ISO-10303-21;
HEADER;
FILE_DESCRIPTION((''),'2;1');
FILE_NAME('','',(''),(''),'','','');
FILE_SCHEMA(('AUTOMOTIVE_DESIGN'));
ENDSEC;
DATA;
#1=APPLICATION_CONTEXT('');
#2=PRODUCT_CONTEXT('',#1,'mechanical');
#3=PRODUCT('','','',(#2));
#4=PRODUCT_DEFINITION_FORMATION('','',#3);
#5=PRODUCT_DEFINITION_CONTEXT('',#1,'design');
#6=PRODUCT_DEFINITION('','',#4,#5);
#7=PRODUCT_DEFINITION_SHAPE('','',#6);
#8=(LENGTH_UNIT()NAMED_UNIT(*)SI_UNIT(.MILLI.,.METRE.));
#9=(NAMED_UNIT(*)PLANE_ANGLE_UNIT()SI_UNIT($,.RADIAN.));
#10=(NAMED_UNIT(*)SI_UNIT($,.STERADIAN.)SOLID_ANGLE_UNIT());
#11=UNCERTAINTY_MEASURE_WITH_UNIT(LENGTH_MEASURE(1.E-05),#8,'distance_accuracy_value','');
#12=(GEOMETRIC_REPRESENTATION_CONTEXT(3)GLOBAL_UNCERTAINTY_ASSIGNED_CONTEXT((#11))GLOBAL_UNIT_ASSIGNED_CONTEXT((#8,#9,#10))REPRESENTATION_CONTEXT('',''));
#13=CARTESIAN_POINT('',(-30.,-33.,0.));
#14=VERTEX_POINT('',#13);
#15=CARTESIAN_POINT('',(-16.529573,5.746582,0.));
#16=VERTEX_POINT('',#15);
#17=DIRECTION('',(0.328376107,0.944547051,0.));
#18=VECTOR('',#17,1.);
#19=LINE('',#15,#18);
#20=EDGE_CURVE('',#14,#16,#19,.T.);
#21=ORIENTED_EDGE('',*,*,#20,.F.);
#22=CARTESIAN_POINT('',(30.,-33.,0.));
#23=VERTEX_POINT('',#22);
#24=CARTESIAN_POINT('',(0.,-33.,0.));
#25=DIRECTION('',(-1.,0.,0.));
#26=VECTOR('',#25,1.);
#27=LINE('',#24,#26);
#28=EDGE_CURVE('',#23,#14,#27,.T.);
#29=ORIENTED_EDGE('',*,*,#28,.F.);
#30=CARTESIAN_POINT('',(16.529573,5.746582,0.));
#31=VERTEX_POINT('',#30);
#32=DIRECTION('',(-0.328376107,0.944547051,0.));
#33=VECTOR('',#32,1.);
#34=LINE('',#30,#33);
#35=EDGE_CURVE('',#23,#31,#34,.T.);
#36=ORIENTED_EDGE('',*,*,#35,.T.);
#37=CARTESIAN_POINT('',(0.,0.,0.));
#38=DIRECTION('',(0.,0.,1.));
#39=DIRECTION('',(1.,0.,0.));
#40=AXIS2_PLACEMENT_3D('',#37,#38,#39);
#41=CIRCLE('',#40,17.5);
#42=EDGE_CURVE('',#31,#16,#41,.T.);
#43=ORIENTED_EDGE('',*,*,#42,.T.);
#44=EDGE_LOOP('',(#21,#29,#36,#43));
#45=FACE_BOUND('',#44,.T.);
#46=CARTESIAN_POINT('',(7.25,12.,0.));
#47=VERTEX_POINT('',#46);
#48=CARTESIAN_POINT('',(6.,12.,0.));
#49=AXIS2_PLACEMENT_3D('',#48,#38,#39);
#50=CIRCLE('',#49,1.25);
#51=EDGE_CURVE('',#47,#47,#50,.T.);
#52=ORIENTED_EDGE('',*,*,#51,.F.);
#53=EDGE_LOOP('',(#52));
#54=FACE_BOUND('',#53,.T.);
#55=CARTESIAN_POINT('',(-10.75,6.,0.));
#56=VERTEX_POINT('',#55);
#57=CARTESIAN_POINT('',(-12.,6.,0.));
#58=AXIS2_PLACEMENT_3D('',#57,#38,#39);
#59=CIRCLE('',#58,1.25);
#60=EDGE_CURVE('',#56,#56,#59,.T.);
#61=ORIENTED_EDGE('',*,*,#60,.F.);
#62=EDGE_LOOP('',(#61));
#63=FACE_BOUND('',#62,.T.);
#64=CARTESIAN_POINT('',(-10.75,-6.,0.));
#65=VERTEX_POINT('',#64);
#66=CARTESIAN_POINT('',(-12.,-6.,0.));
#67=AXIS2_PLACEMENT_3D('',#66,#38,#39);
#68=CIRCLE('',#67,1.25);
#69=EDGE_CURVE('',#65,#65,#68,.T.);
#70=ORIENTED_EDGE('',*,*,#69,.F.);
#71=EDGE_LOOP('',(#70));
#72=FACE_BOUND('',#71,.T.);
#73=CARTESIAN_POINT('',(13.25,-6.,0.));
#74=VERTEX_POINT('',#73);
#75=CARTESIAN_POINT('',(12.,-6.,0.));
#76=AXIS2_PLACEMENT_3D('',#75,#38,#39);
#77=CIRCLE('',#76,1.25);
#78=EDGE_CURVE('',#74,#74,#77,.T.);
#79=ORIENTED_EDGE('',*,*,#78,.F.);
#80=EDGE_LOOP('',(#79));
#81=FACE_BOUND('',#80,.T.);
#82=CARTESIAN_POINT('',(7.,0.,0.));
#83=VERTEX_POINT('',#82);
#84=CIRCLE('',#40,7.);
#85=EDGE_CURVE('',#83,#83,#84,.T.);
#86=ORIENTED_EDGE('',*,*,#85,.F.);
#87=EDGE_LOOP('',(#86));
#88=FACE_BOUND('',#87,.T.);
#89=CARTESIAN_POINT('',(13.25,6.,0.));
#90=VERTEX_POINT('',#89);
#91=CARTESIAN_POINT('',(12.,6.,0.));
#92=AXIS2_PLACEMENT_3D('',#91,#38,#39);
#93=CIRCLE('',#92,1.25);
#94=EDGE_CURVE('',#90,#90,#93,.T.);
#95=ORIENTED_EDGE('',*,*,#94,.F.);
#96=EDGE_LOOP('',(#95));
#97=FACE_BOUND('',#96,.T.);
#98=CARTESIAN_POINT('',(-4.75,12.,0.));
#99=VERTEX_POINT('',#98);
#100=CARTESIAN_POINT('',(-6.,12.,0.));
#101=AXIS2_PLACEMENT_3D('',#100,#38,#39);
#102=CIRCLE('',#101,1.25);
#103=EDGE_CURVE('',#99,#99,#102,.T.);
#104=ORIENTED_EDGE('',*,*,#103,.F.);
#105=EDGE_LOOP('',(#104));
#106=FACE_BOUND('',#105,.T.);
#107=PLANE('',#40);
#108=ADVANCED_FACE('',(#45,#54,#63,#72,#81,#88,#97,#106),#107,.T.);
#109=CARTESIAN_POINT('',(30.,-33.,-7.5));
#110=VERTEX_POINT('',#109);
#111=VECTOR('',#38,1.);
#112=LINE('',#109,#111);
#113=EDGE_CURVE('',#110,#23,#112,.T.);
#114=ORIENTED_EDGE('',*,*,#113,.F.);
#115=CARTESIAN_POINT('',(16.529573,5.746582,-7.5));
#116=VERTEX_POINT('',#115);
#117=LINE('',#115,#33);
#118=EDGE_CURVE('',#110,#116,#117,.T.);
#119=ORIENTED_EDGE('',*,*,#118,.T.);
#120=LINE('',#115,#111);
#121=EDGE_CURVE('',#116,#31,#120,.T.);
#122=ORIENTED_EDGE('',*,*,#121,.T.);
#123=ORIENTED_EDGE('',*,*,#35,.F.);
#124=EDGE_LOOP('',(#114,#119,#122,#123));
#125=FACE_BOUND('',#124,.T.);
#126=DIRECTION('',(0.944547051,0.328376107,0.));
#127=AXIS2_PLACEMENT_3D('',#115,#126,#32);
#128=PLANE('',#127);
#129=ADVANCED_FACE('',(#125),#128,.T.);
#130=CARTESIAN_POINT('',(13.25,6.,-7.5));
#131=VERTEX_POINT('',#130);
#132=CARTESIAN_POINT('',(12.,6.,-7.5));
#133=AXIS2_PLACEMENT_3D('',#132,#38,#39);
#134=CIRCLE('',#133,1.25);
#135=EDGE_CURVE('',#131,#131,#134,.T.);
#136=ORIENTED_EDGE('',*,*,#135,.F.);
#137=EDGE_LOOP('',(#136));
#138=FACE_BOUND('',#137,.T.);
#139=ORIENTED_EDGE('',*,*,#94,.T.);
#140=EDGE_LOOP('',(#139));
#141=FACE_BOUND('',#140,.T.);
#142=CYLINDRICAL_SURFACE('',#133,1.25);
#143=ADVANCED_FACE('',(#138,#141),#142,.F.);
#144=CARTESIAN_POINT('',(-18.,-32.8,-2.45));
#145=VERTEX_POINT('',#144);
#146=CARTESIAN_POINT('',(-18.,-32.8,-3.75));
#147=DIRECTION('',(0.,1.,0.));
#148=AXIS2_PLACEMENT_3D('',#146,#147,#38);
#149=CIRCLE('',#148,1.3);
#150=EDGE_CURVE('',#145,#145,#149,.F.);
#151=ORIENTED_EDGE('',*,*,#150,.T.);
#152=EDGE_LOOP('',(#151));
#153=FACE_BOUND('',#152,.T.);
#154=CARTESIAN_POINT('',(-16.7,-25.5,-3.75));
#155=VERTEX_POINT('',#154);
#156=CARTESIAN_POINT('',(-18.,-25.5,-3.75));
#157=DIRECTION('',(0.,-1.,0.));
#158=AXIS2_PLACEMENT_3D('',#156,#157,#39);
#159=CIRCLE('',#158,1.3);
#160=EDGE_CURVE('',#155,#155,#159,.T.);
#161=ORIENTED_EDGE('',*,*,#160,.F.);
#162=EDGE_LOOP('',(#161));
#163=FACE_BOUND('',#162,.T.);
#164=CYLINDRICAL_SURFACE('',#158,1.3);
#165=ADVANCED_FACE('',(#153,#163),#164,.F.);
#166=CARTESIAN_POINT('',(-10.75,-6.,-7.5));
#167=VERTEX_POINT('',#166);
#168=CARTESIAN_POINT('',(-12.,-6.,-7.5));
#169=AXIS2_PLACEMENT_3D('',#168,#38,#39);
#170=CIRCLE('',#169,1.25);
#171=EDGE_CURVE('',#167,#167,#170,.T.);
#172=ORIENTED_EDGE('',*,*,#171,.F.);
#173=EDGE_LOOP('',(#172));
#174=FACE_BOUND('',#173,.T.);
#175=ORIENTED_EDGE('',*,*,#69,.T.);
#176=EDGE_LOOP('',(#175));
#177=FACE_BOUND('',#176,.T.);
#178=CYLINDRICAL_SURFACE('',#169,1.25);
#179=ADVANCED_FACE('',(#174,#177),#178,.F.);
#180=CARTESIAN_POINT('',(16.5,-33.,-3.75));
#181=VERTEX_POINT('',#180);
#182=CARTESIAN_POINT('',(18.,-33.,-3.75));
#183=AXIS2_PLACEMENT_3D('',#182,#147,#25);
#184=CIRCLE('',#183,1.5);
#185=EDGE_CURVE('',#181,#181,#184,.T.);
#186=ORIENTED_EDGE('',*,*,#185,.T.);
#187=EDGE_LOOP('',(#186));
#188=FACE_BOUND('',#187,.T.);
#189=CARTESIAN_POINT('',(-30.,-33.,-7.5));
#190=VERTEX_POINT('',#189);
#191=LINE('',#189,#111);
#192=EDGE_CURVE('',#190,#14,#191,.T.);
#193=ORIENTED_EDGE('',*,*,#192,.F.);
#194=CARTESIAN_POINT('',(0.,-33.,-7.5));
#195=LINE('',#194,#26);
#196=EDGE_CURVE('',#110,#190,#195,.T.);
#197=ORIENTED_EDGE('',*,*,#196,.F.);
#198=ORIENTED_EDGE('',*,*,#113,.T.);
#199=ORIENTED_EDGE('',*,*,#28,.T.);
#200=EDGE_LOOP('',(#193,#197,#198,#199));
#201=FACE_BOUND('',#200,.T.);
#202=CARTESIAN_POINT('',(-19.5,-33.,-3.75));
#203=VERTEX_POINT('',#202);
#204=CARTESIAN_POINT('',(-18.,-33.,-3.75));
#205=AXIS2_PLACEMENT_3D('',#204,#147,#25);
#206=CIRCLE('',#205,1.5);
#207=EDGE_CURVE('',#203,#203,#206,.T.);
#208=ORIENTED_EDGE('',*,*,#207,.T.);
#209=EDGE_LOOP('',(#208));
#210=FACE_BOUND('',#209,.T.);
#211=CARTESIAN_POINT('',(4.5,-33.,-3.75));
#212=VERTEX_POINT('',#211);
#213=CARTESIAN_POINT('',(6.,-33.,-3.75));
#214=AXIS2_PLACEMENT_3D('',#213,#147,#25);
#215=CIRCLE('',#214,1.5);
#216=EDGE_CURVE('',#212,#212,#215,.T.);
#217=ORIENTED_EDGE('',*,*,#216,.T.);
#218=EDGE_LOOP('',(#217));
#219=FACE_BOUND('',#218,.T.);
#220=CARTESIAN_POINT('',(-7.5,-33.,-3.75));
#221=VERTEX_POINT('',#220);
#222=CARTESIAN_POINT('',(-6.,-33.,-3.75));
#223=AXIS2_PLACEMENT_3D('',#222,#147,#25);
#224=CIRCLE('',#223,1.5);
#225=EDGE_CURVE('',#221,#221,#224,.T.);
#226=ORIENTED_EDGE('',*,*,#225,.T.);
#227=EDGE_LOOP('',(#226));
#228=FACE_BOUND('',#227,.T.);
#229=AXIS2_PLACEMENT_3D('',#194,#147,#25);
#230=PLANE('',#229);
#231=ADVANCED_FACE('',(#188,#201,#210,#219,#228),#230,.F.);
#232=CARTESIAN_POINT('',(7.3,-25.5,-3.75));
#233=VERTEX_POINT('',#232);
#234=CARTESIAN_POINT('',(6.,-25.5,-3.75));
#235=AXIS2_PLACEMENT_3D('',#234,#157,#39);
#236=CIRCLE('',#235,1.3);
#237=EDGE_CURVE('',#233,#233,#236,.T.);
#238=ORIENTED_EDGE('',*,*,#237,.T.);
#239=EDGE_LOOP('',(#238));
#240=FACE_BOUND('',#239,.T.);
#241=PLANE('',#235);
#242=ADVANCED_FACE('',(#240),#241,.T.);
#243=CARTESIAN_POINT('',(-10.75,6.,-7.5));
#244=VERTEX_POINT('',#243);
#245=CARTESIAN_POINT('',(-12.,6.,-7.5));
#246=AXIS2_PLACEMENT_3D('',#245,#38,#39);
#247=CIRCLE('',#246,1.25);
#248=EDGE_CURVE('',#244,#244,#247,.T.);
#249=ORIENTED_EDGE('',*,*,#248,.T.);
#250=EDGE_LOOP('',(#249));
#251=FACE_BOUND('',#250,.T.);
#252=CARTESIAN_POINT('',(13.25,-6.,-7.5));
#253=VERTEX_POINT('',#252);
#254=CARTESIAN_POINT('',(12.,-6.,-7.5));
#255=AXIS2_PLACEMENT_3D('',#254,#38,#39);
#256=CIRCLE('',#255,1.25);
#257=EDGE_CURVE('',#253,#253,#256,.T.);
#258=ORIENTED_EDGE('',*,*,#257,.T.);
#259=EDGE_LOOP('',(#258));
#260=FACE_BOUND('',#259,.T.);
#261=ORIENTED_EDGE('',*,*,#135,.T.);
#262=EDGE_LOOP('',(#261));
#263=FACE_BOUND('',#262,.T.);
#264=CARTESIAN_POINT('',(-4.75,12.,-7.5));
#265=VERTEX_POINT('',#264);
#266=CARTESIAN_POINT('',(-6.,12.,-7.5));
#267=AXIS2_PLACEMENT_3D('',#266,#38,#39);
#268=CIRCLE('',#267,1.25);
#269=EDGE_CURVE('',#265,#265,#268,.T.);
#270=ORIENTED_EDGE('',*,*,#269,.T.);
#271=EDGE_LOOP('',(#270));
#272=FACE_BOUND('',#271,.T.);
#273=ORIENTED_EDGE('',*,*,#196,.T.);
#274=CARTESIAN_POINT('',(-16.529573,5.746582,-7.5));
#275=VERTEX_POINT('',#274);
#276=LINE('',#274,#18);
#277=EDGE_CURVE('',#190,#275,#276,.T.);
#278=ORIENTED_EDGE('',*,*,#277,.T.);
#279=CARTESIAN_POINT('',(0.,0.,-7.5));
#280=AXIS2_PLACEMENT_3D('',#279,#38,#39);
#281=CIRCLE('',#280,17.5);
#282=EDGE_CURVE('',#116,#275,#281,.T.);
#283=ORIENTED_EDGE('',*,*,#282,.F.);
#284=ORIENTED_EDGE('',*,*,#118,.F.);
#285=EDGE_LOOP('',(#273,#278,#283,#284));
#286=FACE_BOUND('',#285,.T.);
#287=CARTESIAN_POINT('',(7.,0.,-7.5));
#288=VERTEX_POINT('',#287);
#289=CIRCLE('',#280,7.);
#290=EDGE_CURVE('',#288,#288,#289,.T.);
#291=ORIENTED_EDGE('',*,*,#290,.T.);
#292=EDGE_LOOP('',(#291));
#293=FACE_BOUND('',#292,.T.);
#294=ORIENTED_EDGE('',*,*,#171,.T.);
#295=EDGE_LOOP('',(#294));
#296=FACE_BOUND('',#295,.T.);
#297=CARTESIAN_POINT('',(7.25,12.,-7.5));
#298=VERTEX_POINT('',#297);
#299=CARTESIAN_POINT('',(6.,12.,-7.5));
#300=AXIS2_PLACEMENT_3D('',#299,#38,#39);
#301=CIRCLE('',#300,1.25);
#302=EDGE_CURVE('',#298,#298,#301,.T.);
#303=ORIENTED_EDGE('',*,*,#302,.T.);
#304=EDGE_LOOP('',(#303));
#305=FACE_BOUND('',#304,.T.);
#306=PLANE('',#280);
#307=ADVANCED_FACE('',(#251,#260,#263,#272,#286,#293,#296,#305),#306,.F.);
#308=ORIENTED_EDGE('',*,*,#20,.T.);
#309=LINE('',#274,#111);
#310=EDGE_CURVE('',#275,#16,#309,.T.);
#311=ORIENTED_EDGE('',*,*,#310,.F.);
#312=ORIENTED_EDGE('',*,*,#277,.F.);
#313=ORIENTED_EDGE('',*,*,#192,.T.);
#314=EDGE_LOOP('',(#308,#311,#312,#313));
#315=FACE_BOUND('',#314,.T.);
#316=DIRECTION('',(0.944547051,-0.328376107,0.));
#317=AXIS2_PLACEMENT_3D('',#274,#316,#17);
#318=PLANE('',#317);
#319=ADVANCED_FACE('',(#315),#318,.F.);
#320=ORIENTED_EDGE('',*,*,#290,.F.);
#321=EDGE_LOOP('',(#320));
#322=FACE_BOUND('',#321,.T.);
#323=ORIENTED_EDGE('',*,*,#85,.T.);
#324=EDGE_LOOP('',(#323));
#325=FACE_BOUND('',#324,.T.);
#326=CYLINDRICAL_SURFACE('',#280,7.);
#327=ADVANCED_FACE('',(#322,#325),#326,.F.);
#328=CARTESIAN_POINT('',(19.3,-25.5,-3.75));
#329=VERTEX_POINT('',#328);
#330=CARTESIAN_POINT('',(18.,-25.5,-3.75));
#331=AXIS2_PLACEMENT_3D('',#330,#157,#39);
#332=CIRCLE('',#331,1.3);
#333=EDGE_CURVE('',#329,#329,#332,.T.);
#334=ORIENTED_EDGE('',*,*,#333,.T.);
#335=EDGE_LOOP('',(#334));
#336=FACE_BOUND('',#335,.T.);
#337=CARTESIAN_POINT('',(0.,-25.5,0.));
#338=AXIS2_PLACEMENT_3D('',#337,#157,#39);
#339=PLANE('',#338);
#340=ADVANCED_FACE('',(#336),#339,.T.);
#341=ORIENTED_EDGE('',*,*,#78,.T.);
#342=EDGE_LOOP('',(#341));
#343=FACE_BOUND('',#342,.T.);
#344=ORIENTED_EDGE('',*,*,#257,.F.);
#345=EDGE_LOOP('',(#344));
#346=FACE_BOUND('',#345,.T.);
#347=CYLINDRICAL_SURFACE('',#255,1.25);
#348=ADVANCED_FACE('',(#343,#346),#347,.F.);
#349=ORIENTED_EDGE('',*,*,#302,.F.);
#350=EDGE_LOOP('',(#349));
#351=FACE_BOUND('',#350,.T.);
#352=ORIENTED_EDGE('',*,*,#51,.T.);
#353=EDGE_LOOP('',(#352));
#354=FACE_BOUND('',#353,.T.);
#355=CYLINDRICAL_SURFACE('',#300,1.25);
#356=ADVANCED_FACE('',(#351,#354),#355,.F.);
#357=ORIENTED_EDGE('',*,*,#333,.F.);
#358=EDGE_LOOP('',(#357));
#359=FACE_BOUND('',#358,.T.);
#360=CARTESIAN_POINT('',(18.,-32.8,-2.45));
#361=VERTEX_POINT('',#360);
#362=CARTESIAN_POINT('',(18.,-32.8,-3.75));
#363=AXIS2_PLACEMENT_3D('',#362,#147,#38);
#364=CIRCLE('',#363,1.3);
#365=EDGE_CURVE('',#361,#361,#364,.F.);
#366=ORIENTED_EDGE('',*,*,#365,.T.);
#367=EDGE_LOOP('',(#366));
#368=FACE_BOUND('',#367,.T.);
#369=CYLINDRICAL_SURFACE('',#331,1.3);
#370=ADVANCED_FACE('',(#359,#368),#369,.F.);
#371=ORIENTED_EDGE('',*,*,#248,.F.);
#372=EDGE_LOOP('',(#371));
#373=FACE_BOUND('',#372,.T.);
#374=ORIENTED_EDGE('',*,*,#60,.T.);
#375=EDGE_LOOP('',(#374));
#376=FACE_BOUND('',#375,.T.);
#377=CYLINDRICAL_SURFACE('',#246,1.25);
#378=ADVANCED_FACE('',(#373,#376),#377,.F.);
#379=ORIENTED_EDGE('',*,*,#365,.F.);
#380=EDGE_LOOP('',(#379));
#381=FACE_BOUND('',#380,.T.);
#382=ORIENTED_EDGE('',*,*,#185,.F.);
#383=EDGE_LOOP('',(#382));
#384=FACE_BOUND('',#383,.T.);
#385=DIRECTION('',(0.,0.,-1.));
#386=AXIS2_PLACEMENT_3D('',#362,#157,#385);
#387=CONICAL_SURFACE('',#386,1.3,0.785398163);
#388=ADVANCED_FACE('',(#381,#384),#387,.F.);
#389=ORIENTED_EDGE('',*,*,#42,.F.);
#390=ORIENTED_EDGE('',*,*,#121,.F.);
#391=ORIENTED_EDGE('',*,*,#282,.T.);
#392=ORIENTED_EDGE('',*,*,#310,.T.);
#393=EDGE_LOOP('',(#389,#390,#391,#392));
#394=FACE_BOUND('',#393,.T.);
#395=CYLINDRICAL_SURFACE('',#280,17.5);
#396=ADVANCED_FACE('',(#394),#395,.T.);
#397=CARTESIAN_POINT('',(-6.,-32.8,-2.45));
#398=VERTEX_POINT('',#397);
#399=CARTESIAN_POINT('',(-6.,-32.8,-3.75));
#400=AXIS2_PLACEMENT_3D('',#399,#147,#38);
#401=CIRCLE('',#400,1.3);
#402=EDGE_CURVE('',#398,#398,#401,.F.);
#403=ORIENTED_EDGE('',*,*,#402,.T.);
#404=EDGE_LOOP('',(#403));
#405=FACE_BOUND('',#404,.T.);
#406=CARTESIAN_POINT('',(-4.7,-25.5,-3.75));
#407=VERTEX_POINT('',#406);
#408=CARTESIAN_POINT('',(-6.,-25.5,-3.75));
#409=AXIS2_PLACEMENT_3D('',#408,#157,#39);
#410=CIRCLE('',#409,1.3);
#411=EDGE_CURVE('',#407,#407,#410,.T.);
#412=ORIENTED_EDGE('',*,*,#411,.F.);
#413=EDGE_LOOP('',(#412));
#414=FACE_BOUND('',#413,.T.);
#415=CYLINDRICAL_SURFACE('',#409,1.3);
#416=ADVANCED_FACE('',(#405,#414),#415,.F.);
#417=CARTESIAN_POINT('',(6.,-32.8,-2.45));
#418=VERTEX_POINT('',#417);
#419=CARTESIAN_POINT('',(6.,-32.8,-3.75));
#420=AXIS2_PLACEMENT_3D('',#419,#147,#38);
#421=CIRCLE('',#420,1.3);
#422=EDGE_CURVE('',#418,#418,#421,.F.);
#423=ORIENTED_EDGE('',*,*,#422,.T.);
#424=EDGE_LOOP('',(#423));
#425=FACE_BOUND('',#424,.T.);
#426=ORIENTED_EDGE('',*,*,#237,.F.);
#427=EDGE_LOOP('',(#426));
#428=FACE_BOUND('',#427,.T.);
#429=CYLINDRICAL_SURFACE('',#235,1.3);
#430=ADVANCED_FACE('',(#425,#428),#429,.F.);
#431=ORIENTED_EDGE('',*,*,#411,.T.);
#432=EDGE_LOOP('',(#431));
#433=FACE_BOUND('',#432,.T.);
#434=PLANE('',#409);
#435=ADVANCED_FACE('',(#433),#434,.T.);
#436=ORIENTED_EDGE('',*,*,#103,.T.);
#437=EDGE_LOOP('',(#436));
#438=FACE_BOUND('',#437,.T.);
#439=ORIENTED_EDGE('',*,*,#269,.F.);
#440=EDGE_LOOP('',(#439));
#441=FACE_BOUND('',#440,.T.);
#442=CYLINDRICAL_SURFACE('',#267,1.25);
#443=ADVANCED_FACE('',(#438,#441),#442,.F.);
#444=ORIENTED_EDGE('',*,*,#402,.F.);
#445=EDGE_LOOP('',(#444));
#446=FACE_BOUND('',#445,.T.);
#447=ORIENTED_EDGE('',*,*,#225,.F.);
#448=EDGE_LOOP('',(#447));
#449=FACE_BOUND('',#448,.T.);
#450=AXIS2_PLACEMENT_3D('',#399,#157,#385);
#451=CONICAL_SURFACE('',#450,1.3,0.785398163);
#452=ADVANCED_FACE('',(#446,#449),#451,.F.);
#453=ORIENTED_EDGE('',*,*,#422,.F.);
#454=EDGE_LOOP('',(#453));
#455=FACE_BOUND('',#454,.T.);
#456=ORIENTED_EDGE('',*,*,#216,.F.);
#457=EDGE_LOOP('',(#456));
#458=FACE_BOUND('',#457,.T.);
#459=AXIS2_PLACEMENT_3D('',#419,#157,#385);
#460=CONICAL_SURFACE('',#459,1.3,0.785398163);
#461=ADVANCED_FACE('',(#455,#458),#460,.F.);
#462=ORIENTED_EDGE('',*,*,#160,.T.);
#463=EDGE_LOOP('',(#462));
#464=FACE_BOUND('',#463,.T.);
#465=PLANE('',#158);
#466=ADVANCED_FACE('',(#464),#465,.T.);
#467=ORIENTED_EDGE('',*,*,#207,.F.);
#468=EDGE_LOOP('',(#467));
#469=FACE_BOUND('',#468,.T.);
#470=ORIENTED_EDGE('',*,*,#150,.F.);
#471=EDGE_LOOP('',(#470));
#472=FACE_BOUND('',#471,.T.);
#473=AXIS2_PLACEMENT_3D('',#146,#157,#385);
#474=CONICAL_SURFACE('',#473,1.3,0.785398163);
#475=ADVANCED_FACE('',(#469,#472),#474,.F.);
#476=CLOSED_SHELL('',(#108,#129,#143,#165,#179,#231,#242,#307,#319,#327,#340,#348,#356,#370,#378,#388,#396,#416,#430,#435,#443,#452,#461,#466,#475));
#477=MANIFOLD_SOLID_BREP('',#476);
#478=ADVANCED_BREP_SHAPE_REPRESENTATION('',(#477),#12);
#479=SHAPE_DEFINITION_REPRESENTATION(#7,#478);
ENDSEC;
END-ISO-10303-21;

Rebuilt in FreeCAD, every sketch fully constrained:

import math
import FreeCAD as App
import Part
import Sketcher
from FreeCAD import Vector
Q = App.Units.Quantity


def edges_at(feature, points):
    """Names of the edges that pass closest to the given points."""
    edges = feature.Shape.Edges
    near = lambda p: min(range(len(edges)), key=lambda i: edges[i].distToShape(Part.Vertex(*p))[0])
    return sorted({f"Edge{near(p) + 1}" for p in points})

doc = App.newDocument("Part")
body = doc.addObject("PartDesign::Body", "Body")

# Sketch on XY plane
sketch1 = body.newObject("Sketcher::SketchObject", "Sketch")
sketch1.AttachmentSupport = (doc.getObject("XY_Plane"), [""])
sketch1.MapMode = "FlatFace"
sketch1.addGeometry([
    Part.LineSegment(Vector(-16.5, 5.7, 0), Vector(-30, -33, 0)),  # 0
    Part.LineSegment(Vector(-30, -33, 0), Vector(30, -33, 0)),  # 1
    Part.LineSegment(Vector(30, -33, 0), Vector(16.5, 5.7, 0)),  # 2
    Part.ArcOfCircle(Part.Circle(Vector(0, 0, 0), Vector(0, 0, 1), 17.5), math.radians(19), math.radians(161)),  # 3
    Part.Circle(Vector(12, -6, 0), Vector(0, 0, 1), 1.2),  # 4
    Part.Circle(Vector(-12, -6, 0), Vector(0, 0, 1), 1.2),  # 5
    Part.Circle(Vector(0, 0, 0), Vector(0, 0, 1), 7),  # 6
    Part.Circle(Vector(12, 6, 0), Vector(0, 0, 1), 1.2),  # 7
    Part.Circle(Vector(6, 12, 0), Vector(0, 0, 1), 1.2),  # 8
    Part.Circle(Vector(-12, 6, 0), Vector(0, 0, 1), 1.2),  # 9
    Part.Circle(Vector(-6, 12, 0), Vector(0, 0, 1), 1.2),  # 10
], False)
sketch1.addConstraint([
    Sketcher.Constraint("Coincident", 0, 2, 1, 1),
    Sketcher.Constraint("Coincident", 1, 2, 2, 1),
    Sketcher.Constraint("Tangent", 2, 2, 3, 1),
    Sketcher.Constraint("Tangent", 3, 2, 0, 1),
    Sketcher.Constraint("Horizontal", 1),
    Sketcher.Constraint("Coincident", 3, 3, -1, 1),
    Sketcher.Constraint("Coincident", 6, 3, -1, 1),
    Sketcher.Constraint("Equal", 4, 5),
    Sketcher.Constraint("Equal", 5, 7),
    Sketcher.Constraint("Equal", 7, 8),
    Sketcher.Constraint("Equal", 8, 9),
    Sketcher.Constraint("Equal", 9, 10),
    Sketcher.Constraint("Symmetric", 5, 3, 7, 3, -1, 1),
    Sketcher.Constraint("Symmetric", 4, 3, 9, 3, -1, 1),
    Sketcher.Constraint("Symmetric", 4, 3, 5, 3, -2),
    Sketcher.Constraint("Symmetric", 8, 3, 10, 3, -2),
    Sketcher.Constraint("Horizontal", 2, 2, 3, 2),
    Sketcher.Constraint("Diameter", 6, Q("14 mm")),
    Sketcher.Constraint("Diameter", 4, Q("2.5 mm")),
    Sketcher.Constraint("Radius", 3, Q("17.5 mm")),
    Sketcher.Constraint("DistanceX", 1, 1, 1, 2, Q("60 mm")),
    Sketcher.Constraint("DistanceX", -1, 1, 4, 3, Q("12 mm")),
    Sketcher.Constraint("DistanceY", 4, 3, -1, 1, Q("6 mm")),
    Sketcher.Constraint("DistanceX", -1, 1, 8, 3, Q("6 mm")),
    Sketcher.Constraint("DistanceY", -1, 1, 8, 3, Q("12 mm")),
    Sketcher.Constraint("DistanceY", 0, 2, -1, 1, Q("33 mm")),
])
pad1 = body.newObject("PartDesign::Pad", "Pad")
pad1.Profile = sketch1
pad1.Length = 7.5
pad1.Reversed = True

# Sketch on XZ plane
sketch2 = body.newObject("Sketcher::SketchObject", "Sketch001")
sketch2.AttachmentSupport = (doc.getObject("XZ_Plane"), [""])
sketch2.MapMode = "FlatFace"
sketch2.AttachmentOffset = App.Placement(Vector(0, 0, 33), App.Rotation())
sketch2.addGeometry([
    Part.Circle(Vector(18, -3.8, 0), Vector(0, 0, 1), 1.3),
    Part.Circle(Vector(6, -3.8, 0), Vector(0, 0, 1), 1.3),
    Part.Circle(Vector(-6, -3.8, 0), Vector(0, 0, 1), 1.3),
    Part.Circle(Vector(-18, -3.8, 0), Vector(0, 0, 1), 1.3),
], False)
sketch2.addConstraint([
    Sketcher.Constraint("Equal", 0, 1),
    Sketcher.Constraint("Equal", 1, 2),
    Sketcher.Constraint("Equal", 2, 3),
    Sketcher.Constraint("Symmetric", 1, 3, 2, 3, -2),
    Sketcher.Constraint("Symmetric", 0, 3, 3, 3, -2),
    Sketcher.Constraint("Horizontal", 0, 3, 1, 3),
    Sketcher.Constraint("Diameter", 0, Q("2.6 mm")),
    Sketcher.Constraint("DistanceX", -1, 1, 0, 3, Q("18 mm")),
    Sketcher.Constraint("DistanceX", -1, 1, 1, 3, Q("6 mm")),
    Sketcher.Constraint("DistanceY", 0, 3, -1, 1, Q("3.75 mm")),
])
pocket1 = body.newObject("PartDesign::Pocket", "Pocket")
pocket1.Profile = sketch2
pocket1.Length = 7.5
doc.recompute()

chamfer = body.newObject("PartDesign::Chamfer", "Chamfer")
chamfer.Base = (pocket1, edges_at(pocket1, [
    (16.7, -33, -3.75),
    (4.7, -33, -3.75),
    (-7.3, -33, -3.75),
    (-19.3, -33, -3.75),
]))
chamfer.Size = 0.2

doc.recompute()
